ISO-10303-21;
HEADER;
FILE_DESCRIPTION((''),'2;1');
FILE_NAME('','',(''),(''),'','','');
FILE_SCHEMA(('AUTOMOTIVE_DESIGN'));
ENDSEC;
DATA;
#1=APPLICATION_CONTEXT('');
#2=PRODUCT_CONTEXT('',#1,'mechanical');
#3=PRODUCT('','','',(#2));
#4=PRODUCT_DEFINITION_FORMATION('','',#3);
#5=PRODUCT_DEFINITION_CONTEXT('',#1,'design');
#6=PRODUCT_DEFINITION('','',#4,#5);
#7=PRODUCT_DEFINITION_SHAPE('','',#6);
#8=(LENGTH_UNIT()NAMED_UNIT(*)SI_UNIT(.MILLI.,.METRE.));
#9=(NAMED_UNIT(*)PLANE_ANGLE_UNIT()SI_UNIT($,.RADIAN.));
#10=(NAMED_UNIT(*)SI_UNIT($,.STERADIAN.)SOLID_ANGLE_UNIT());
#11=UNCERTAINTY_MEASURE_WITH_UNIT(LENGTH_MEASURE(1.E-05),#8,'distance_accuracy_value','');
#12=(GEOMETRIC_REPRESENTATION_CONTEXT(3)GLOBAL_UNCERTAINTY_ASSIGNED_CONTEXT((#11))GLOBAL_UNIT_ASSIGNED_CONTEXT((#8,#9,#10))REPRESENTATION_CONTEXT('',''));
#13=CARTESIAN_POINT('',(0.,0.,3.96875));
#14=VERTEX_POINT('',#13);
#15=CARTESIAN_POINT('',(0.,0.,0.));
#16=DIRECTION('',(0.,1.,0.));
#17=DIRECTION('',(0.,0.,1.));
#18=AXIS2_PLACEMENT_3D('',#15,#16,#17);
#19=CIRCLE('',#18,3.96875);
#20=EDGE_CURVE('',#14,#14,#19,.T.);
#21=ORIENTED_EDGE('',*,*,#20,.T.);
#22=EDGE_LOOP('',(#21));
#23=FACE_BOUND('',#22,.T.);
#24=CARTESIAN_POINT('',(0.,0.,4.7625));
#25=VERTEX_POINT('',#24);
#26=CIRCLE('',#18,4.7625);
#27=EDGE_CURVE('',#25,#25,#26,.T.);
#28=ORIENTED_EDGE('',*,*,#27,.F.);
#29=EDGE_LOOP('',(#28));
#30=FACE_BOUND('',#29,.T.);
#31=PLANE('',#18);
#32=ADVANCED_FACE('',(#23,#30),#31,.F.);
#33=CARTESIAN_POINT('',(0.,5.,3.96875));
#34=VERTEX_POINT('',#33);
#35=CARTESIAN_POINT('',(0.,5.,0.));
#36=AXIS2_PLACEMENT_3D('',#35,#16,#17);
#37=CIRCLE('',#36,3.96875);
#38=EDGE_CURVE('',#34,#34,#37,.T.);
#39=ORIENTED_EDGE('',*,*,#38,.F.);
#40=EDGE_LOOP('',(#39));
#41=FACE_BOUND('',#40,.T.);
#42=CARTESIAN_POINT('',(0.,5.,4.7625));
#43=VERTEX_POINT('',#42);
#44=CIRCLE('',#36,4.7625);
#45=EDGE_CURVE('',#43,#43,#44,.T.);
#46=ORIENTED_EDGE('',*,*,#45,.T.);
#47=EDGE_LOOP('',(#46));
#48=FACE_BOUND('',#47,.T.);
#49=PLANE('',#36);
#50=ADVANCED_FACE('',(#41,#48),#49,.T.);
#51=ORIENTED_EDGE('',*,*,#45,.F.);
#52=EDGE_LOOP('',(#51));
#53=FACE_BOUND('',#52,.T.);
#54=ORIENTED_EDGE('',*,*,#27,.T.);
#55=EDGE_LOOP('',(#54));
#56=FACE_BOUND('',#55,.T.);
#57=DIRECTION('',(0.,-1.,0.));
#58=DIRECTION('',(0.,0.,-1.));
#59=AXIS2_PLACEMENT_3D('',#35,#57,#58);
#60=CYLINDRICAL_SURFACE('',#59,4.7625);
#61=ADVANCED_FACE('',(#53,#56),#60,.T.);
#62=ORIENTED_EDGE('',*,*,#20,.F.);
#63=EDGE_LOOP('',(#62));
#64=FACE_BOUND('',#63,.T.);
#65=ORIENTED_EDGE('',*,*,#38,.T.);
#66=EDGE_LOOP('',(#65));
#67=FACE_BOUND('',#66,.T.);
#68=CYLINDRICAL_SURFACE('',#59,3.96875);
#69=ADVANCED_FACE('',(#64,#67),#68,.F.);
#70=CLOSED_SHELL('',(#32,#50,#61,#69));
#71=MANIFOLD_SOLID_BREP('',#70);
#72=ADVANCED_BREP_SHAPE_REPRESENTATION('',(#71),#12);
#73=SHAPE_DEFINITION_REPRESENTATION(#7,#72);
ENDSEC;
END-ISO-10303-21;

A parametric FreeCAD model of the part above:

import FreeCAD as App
import Part
import Sketcher

V = App.Vector
Q = App.Units.Quantity

doc = App.newDocument("Part")
body = doc.addObject("PartDesign::Body", "Body")

sketch1 = doc.addObject("Sketcher::SketchObject", "Sketch")
body.addObject(sketch1)
sketch1.AttachmentSupport = (doc.XZ_Plane, [""])
sketch1.MapMode = "FlatFace"
sketch1.addGeometry(Part.Circle(V(0, 0, 0), V(0, 0, 1), 4.8), False)
sketch1.addGeometry(Part.Circle(V(0, 0, 0), V(0, 0, 1), 4), False)
sketch1.addConstraint(Sketcher.Constraint("Coincident", 0, 3, -1, 1))
sketch1.addConstraint(Sketcher.Constraint("Coincident", 1, 3, -1, 1))
sketch1.addConstraint(Sketcher.Constraint("Diameter", 0, Q("0.375 in")))
sketch1.addConstraint(Sketcher.Constraint("Diameter", 1, Q("0.3125 in")))
pad1 = doc.addObject("PartDesign::Pad", "Pad")
body.addObject(pad1)
pad1.Profile = sketch1
pad1.Length = 5
pad1.Reversed = True

doc.recompute()
